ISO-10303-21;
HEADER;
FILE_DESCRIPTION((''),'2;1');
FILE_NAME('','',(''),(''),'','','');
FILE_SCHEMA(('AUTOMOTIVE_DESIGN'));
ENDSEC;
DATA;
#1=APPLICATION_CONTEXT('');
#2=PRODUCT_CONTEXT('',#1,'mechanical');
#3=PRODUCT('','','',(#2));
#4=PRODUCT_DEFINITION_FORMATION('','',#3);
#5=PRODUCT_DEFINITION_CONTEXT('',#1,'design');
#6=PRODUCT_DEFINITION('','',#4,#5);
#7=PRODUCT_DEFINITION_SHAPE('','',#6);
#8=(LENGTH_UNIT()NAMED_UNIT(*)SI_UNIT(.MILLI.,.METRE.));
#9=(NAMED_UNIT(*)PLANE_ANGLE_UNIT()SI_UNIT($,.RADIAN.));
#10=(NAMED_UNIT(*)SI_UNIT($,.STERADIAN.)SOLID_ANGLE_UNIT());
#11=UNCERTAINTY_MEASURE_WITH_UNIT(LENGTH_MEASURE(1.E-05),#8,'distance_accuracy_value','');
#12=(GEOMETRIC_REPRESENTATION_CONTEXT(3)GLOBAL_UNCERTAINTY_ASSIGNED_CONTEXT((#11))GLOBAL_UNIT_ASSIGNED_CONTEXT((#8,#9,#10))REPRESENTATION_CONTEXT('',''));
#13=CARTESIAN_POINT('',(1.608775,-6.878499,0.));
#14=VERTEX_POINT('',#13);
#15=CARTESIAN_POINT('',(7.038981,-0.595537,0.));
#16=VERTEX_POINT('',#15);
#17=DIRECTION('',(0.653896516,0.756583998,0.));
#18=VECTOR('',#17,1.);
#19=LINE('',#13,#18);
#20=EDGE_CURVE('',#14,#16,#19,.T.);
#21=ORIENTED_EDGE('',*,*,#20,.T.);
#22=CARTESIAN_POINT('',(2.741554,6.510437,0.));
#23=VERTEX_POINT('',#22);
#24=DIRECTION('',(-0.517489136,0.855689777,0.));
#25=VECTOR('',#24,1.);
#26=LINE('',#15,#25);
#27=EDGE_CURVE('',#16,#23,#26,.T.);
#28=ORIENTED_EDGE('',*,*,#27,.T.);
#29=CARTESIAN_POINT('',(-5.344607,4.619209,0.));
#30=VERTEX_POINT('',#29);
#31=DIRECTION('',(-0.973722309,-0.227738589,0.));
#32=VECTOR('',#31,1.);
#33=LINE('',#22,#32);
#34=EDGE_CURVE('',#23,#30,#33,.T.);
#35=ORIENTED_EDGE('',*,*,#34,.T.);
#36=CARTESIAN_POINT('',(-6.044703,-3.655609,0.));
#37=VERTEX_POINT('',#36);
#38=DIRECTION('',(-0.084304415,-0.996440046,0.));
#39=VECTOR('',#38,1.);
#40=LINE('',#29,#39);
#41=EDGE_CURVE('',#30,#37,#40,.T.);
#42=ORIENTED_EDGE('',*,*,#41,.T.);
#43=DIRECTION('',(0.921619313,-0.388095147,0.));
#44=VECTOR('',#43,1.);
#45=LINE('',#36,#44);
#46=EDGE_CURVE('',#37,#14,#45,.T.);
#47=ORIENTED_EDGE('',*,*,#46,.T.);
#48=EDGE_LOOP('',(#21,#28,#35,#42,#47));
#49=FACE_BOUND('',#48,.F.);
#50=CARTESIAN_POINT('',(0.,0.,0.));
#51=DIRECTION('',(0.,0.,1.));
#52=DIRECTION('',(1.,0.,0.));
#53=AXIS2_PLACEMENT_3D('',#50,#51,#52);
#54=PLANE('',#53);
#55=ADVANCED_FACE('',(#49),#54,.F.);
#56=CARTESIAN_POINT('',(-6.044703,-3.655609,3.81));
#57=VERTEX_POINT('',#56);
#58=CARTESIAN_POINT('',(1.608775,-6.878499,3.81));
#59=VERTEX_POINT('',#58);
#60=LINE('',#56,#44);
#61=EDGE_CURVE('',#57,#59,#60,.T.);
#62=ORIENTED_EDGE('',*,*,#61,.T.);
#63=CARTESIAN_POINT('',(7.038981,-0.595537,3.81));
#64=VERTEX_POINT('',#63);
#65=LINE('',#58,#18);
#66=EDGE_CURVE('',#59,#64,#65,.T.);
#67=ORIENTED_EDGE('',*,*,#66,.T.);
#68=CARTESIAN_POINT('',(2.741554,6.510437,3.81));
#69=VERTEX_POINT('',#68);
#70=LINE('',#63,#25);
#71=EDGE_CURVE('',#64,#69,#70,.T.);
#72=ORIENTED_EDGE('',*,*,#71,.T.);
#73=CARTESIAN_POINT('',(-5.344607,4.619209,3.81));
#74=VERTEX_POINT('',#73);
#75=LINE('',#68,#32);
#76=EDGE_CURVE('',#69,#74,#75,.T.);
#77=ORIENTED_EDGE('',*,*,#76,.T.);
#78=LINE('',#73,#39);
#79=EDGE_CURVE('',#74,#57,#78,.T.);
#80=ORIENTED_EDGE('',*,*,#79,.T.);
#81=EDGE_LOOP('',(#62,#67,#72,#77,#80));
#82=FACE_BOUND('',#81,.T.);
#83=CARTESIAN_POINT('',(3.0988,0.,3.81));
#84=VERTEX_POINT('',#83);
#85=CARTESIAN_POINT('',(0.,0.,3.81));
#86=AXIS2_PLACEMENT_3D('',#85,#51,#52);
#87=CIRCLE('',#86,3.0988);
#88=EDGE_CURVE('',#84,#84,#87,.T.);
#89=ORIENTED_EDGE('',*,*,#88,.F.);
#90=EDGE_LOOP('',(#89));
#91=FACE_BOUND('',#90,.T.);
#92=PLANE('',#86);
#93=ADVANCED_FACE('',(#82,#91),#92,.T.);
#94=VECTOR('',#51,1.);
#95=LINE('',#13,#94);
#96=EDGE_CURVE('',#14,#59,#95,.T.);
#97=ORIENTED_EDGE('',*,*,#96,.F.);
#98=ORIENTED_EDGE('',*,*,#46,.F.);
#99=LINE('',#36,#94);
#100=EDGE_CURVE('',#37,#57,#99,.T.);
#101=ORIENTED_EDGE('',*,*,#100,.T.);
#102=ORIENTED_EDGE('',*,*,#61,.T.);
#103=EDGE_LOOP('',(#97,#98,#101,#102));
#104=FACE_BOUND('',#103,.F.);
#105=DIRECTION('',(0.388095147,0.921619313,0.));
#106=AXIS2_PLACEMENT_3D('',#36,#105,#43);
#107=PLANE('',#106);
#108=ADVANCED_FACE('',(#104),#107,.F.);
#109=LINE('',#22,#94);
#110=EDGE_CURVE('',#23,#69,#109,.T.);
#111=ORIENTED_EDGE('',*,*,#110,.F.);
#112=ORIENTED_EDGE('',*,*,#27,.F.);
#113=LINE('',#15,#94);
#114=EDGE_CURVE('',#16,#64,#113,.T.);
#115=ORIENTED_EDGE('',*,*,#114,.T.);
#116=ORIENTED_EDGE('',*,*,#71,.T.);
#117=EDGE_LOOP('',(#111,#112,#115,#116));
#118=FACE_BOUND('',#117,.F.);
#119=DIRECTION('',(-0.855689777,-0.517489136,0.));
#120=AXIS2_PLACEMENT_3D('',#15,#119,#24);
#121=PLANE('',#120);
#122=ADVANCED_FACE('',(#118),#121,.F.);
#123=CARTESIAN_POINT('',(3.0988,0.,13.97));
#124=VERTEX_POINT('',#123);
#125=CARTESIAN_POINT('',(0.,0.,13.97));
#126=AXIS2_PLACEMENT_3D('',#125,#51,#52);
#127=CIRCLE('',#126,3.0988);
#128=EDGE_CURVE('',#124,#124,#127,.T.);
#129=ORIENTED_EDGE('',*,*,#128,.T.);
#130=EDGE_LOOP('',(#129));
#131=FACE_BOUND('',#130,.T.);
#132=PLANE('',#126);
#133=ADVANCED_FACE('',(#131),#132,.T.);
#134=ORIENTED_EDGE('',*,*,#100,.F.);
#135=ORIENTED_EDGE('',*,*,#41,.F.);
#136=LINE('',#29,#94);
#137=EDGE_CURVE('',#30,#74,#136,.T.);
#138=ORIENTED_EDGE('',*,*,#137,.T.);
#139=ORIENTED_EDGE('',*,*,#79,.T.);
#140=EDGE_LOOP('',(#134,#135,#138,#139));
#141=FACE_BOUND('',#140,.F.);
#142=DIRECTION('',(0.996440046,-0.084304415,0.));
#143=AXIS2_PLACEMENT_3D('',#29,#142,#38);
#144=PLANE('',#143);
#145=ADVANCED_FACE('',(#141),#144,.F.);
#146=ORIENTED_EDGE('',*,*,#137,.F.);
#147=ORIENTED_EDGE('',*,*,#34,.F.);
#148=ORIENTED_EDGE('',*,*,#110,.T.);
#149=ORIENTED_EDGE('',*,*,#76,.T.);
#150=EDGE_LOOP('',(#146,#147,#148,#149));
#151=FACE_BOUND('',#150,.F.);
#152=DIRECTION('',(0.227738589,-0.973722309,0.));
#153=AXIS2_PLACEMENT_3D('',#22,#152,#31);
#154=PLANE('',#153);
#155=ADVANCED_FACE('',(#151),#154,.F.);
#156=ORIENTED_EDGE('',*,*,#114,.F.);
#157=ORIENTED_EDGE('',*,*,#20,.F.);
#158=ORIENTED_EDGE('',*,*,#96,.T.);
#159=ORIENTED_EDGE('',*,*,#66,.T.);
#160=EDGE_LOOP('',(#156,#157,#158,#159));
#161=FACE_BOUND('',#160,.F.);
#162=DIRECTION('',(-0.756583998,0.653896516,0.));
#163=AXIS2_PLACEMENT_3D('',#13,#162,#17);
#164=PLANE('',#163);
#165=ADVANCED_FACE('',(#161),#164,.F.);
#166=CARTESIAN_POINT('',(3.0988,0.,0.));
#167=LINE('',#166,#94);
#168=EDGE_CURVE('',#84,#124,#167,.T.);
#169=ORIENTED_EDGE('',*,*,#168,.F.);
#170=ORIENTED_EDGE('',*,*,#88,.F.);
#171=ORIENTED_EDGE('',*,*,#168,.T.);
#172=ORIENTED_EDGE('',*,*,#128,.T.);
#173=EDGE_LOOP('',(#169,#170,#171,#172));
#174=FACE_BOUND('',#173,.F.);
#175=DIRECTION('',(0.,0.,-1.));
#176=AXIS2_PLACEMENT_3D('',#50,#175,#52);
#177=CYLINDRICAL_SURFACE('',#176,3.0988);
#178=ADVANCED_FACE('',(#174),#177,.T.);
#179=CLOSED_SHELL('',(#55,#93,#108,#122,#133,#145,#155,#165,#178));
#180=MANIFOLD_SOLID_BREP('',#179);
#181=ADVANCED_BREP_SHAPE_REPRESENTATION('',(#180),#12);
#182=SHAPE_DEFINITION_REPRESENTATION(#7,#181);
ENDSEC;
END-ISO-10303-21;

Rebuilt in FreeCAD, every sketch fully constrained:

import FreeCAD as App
import Part
import Sketcher
Q = App.Units.Quantity

doc = App.newDocument("Part")
body = doc.addObject("PartDesign::Body", "Body")

# Sketch on XY plane
sketch1 = doc.addObject("Sketcher::SketchObject", "Sketch")
body.addObject(sketch1)
sketch1.AttachmentSupport = (doc.XY_Plane, [""])
sketch1.MapMode = "FlatFace"
sketch1.addGeometry(Part.Circle(App.Vector(0, 0, 0), App.Vector(0, 0, 1), 3.1), False)
sketch1.addConstraint([
    Sketcher.Constraint("Coincident", 0, 3, -1, 1),
    Sketcher.Constraint("Diameter", 0, Q("0.244 in")),
])
pad1 = doc.addObject("PartDesign::Pad", "Pad")
body.addObject(pad1)
pad1.Profile = sketch1
pad1.Length = Q("0.55 in")

# Sketch on XY plane
sketch2 = doc.addObject("Sketcher::SketchObject", "Sketch001")
body.addObject(sketch2)
sketch2.AttachmentSupport = (doc.XY_Plane, [""])
sketch2.MapMode = "FlatFace"
sketch2.addGeometry([
    Part.LineSegment(App.Vector(7, -0.6, 0), App.Vector(2.7, 6.5, 0)),  # 0
    Part.LineSegment(App.Vector(2.7, 6.5, 0), App.Vector(-5.3, 4.6, 0)),  # 1
    Part.LineSegment(App.Vector(-5.3, 4.6, 0), App.Vector(-6, -3.7, 0)),  # 2
    Part.LineSegment(App.Vector(-6, -3.7, 0), App.Vector(1.6, -6.9, 0)),  # 3
    Part.LineSegment(App.Vector(1.6, -6.9, 0), App.Vector(7, -0.6, 0)),  # 4
    Part.Circle(App.Vector(0, 0, 0), App.Vector(0, 0, 1), 3.1),  # 5
], False)
sketch2.addConstraint([
    Sketcher.Constraint("Coincident", 0, 2, 1, 1),
    Sketcher.Constraint("Coincident", 1, 2, 2, 1),
    Sketcher.Constraint("Coincident", 2, 2, 3, 1),
    Sketcher.Constraint("Coincident", 3, 2, 4, 1),
    Sketcher.Constraint("Coincident", 4, 2, 0, 1),
    Sketcher.Constraint("Coincident", 5, 3, -1, 1),
    Sketcher.Constraint("Equal", 0, 1),
    Sketcher.Constraint("Equal", 1, 2),
    Sketcher.Constraint("Equal", 2, 3),
    Sketcher.Constraint("Equal", 3, 4),
    Sketcher.Constraint("Diameter", 5, Q("0.244 in")),
    Sketcher.Constraint("DistanceY", 3, 2, -1, 1, Q("6.878499 mm")),
    Sketcher.Constraint("Distance", 0, Q("8.304381 mm")),
    Sketcher.Constraint("DistanceY", -1, 1, 1, 2, Q("4.619209 mm")),
    Sketcher.Constraint("DistanceY", 2, 2, -1, 1, Q("3.655609 mm")),
    Sketcher.Constraint("DistanceX", -1, 1, 4, 2, Q("7.038981 mm")),
    Sketcher.Constraint("DistanceX", 1, 2, 0, 2, Q("8.086161 mm")),
])
pad2 = doc.addObject("PartDesign::Pad", "Pad001")
body.addObject(pad2)
pad2.Profile = sketch2
pad2.Length = Q("0.15 in")

doc.recompute()
